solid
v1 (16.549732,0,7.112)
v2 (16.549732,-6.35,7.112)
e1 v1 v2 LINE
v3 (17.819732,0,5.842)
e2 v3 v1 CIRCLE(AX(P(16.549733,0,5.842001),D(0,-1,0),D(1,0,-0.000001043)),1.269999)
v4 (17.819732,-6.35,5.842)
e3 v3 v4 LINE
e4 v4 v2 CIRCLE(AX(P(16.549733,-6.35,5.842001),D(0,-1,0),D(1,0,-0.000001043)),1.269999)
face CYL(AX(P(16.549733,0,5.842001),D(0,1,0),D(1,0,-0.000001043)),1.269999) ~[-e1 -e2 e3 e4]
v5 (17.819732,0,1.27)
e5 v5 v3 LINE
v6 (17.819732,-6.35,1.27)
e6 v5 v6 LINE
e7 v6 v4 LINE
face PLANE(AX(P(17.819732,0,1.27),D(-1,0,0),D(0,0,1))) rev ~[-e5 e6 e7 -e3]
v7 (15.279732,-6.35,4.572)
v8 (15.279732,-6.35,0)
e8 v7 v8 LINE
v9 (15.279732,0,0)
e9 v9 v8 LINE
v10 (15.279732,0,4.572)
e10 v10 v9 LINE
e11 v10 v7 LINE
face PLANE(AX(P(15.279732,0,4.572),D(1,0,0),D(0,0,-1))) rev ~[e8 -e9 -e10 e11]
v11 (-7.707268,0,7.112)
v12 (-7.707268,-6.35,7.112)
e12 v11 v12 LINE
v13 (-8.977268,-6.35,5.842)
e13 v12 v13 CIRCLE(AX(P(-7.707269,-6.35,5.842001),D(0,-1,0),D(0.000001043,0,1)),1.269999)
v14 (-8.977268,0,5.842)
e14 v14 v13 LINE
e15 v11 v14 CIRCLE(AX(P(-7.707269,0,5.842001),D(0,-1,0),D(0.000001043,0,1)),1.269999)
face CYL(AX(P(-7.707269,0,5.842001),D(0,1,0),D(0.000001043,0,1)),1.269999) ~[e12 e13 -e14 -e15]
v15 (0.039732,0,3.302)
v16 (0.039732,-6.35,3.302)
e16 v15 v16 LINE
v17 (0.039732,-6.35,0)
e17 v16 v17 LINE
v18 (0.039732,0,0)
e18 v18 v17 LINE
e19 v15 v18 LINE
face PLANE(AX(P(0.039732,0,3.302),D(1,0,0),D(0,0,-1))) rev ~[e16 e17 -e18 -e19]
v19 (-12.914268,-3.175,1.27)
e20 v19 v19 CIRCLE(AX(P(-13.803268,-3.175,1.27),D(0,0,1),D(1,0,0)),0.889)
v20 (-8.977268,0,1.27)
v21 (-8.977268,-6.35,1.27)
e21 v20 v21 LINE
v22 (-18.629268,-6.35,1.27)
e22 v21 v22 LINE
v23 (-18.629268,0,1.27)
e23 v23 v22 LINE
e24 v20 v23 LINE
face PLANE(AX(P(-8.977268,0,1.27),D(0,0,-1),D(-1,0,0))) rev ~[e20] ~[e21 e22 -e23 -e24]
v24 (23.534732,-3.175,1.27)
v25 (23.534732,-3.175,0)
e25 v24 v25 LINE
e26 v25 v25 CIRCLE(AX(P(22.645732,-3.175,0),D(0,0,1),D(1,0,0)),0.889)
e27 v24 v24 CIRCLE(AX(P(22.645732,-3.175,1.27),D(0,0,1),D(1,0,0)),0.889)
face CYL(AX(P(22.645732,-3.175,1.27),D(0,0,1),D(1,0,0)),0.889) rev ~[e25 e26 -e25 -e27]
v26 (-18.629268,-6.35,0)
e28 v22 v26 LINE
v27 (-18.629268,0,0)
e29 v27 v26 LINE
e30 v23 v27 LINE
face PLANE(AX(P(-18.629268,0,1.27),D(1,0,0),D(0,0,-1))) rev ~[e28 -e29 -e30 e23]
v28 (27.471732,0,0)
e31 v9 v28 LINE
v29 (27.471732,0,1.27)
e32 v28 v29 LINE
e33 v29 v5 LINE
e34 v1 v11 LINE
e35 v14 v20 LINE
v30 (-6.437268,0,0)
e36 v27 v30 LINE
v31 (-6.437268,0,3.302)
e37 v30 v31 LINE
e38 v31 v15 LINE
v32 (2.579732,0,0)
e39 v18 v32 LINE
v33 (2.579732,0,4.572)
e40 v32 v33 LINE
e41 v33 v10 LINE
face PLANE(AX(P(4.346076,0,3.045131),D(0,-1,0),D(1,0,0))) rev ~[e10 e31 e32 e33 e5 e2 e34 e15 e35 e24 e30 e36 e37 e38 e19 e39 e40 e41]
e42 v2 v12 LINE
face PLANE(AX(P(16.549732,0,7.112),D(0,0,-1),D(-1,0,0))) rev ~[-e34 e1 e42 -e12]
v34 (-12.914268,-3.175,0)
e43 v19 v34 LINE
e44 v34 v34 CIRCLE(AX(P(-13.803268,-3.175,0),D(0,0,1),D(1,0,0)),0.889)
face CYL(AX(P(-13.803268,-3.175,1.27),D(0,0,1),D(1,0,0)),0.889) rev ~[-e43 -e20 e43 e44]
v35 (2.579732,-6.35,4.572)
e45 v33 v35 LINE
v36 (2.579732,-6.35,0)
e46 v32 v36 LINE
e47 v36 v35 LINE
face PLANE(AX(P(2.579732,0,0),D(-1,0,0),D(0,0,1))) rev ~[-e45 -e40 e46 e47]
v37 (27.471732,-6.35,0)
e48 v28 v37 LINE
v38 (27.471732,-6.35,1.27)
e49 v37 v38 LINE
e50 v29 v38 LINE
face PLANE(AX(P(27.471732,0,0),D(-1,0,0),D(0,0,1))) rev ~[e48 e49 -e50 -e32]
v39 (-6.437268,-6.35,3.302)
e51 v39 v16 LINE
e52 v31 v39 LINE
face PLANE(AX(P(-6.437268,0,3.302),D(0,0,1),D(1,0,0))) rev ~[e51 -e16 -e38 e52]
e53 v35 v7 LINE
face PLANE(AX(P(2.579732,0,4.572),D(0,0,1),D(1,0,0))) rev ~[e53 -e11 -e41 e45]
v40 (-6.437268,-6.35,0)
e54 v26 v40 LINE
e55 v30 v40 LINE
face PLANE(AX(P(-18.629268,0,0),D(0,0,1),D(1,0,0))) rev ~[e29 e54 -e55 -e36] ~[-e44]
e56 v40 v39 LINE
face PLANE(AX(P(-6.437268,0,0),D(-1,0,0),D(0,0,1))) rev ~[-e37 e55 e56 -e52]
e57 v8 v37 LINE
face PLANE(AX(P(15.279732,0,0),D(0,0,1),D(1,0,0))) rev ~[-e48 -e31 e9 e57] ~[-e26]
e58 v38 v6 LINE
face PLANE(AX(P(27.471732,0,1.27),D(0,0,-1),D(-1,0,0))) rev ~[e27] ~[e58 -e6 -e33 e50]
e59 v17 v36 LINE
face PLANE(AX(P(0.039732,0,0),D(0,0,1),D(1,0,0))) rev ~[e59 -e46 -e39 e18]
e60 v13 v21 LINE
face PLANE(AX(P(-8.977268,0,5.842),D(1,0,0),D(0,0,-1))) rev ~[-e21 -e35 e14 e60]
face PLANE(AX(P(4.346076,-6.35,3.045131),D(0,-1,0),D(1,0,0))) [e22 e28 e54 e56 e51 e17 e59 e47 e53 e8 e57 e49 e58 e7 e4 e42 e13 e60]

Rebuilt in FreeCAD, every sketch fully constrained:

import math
import FreeCAD as App
import Part
import Sketcher
from FreeCAD import Vector
Q = App.Units.Quantity

doc = App.newDocument("Part")
body = doc.addObject("PartDesign::Body", "Body")

# Sketch on XZ plane
sketch1 = doc.addObject("Sketcher::SketchObject", "Sketch")
body.addObject(sketch1)
sketch1.AttachmentSupport = (doc.XZ_Plane, [""])
sketch1.MapMode = "FlatFace"
sketch1.addGeometry(Part.LineSegment(Vector(15.3, 4.6, 0), Vector(15.3, 0, 0)), False)
sketch1.addGeometry(Part.LineSegment(Vector(15.3, 0, 0), Vector(27.5, 0, 0)), False)
sketch1.addGeometry(Part.LineSegment(Vector(27.5, 0, 0), Vector(27.5, 1.3, 0)), False)
sketch1.addGeometry(Part.LineSegment(Vector(27.5, 1.3, 0), Vector(17.8, 1.3, 0)), False)
sketch1.addGeometry(Part.LineSegment(Vector(17.8, 1.3, 0), Vector(17.8, 5.8, 0)), False)
sketch1.addGeometry(Part.ArcOfCircle(Part.Circle(Vector(16.5, 5.8, 0), Vector(0, 0, 1), 1.3), math.radians(0), math.radians(90)), False)
sketch1.addGeometry(Part.LineSegment(Vector(16.5, 7.1, 0), Vector(-7.7, 7.1, 0)), False)
sketch1.addGeometry(Part.ArcOfCircle(Part.Circle(Vector(-7.7, 5.8, 0), Vector(0, 0, 1), 1.3), math.radians(90), math.radians(180)), False)
sketch1.addGeometry(Part.LineSegment(Vector(-9, 5.8, 0), Vector(-9, 1.3, 0)), False)
sketch1.addGeometry(Part.LineSegment(Vector(-9, 1.3, 0), Vector(-18.6, 1.3, 0)), False)
sketch1.addGeometry(Part.LineSegment(Vector(-18.6, 1.3, 0), Vector(-18.6, 0, 0)), False)
sketch1.addGeometry(Part.LineSegment(Vector(-18.6, 0, 0), Vector(-6.4, 0, 0)), False)
sketch1.addGeometry(Part.LineSegment(Vector(-6.4, 0, 0), Vector(-6.4, 3.3, 0)), False)
sketch1.addGeometry(Part.LineSegment(Vector(-6.4, 3.3, 0), Vector(0, 3.3, 0)), False)
sketch1.addGeometry(Part.LineSegment(Vector(0, 3.3, 0), Vector(0, 0, 0)), False)
sketch1.addGeometry(Part.LineSegment(Vector(0, 0, 0), Vector(2.6, 0, 0)), False)
sketch1.addGeometry(Part.LineSegment(Vector(2.6, 0, 0), Vector(2.6, 4.6, 0)), False)
sketch1.addGeometry(Part.LineSegment(Vector(2.6, 4.6, 0), Vector(15.3, 4.6, 0)), False)
sketch1.addConstraint(Sketcher.Constraint("Coincident", 0, 2, 1, 1))
sketch1.addConstraint(Sketcher.Constraint("Coincident", 1, 2, 2, 1))
sketch1.addConstraint(Sketcher.Constraint("Coincident", 2, 2, 3, 1))
sketch1.addConstraint(Sketcher.Constraint("Coincident", 3, 2, 4, 1))
sketch1.addConstraint(Sketcher.Constraint("Tangent", 4, 2, 5, 1))
sketch1.addConstraint(Sketcher.Constraint("Tangent", 5, 2, 6, 1))
sketch1.addConstraint(Sketcher.Constraint("Tangent", 6, 2, 7, 1))
sketch1.addConstraint(Sketcher.Constraint("Tangent", 7, 2, 8, 1))
sketch1.addConstraint(Sketcher.Constraint("Coincident", 8, 2, 9, 1))
sketch1.addConstraint(Sketcher.Constraint("Coincident", 9, 2, 10, 1))
sketch1.addConstraint(Sketcher.Constraint("Coincident", 10, 2, 11, 1))
sketch1.addConstraint(Sketcher.Constraint("Coincident", 11, 2, 12, 1))
sketch1.addConstraint(Sketcher.Constraint("Coincident", 12, 2, 13, 1))
sketch1.addConstraint(Sketcher.Constraint("Coincident", 13, 2, 14, 1))
sketch1.addConstraint(Sketcher.Constraint("Coincident", 14, 2, 15, 1))
sketch1.addConstraint(Sketcher.Constraint("Coincident", 15, 2, 16, 1))
sketch1.addConstraint(Sketcher.Constraint("Coincident", 16, 2, 17, 1))
sketch1.addConstraint(Sketcher.Constraint("Coincident", 17, 2, 0, 1))
sketch1.addConstraint(Sketcher.Constraint("Vertical", 0))
sketch1.addConstraint(Sketcher.Constraint("Horizontal", 1))
sketch1.addConstraint(Sketcher.Constraint("Vertical", 2))
sketch1.addConstraint(Sketcher.Constraint("Horizontal", 3))
sketch1.addConstraint(Sketcher.Constraint("Vertical", 4))
sketch1.addConstraint(Sketcher.Constraint("Horizontal", 6))
sketch1.addConstraint(Sketcher.Constraint("Vertical", 8))
sketch1.addConstraint(Sketcher.Constraint("Horizontal", 9))
sketch1.addConstraint(Sketcher.Constraint("Vertical", 10))
sketch1.addConstraint(Sketcher.Constraint("Horizontal", 11))
sketch1.addConstraint(Sketcher.Constraint("Vertical", 12))
sketch1.addConstraint(Sketcher.Constraint("Horizontal", 13))
sketch1.addConstraint(Sketcher.Constraint("Vertical", 14))
sketch1.addConstraint(Sketcher.Constraint("Horizontal", 15))
sketch1.addConstraint(Sketcher.Constraint("Vertical", 16))
sketch1.addConstraint(Sketcher.Constraint("Horizontal", 17))
sketch1.addConstraint(Sketcher.Constraint("Equal", 5, 7))
sketch1.addConstraint(Sketcher.Constraint("PointOnObject", 0, 2, -1))
sketch1.addConstraint(Sketcher.Constraint("PointOnObject", 10, 2, -1))
sketch1.addConstraint(Sketcher.Constraint("PointOnObject", 14, 2, -1))
sketch1.addConstraint(Sketcher.Constraint("Horizontal", 3, 2, 8, 2))
sketch1.addConstraint(Sketcher.Constraint("Equal", 3, 9))
sketch1.addConstraint(Sketcher.Constraint("Equal", 1, 11))
sketch1.addConstraint(Sketcher.Constraint("Equal", 0, 4))
sketch1.addConstraint(Sketcher.Constraint("Radius", 5, Q("0.0499999 in")))
sketch1.addConstraint(Sketcher.Constraint("DistanceX", 15, 1, 15, 2, Q("0.1 in")))
sketch1.addConstraint(Sketcher.Constraint("DistanceX", 17, 1, 17, 2, Q("0.5 in")))
sketch1.addConstraint(Sketcher.Constraint("DistanceX", 1, 1, 1, 2, Q("0.48 in")))
sketch1.addConstraint(Sketcher.Constraint("DistanceX", 3, 2, 3, 1, Q("0.38 in")))
sketch1.addConstraint(Sketcher.Constraint("DistanceY", 0, 2, 0, 1, Q("0.18 in")))
sketch1.addConstraint(Sketcher.Constraint("DistanceY", 2, 1, 2, 2, Q("0.05 in")))
sketch1.addConstraint(Sketcher.Constraint("DistanceY", 12, 1, 12, 2, Q("0.13 in")))
sketch1.addConstraint(Sketcher.Constraint("DistanceX", 6, 2, 6, 1, Q("0.955 in")))
sketch1.addConstraint(Sketcher.Constraint("DistanceX", 7, 3, -1, 1, 7.707269))
pad1 = doc.addObject("PartDesign::Pad", "Pad")
body.addObject(pad1)
pad1.Profile = sketch1
pad1.Length = Q("0.25 in")

# Sketch on XY plane
sketch2 = doc.addObject("Sketcher::SketchObject", "Sketch001")
body.addObject(sketch2)
sketch2.AttachmentSupport = (doc.XY_Plane, [""])
sketch2.MapMode = "FlatFace"
sketch2.AttachmentOffset = App.Placement(Vector(0, 0, 0.05 * 25.4), App.Rotation())
sketch2.addGeometry(Part.Circle(Vector(-13.8, -3.2, 0), Vector(0, 0, 1), 0.9), False)
sketch2.addGeometry(Part.Circle(Vector(22.6, -3.2, 0), Vector(0, 0, 1), 0.9), False)
sketch2.addConstraint(Sketcher.Constraint("Equal", 0, 1))
sketch2.addConstraint(Sketcher.Constraint("Horizontal", 0, 3, 1, 3))
sketch2.addConstraint(Sketcher.Constraint("Diameter", 0, Q("0.07 in")))
sketch2.addConstraint(Sketcher.Constraint("DistanceY", 0, 3, -1, 1, Q("0.125 in")))
sketch2.addConstraint(Sketcher.Constraint("DistanceX", 0, 3, 1, 3, Q("1.435 in")))
sketch2.addConstraint(Sketcher.Constraint("DistanceX", -1, 1, 1, 3, 22.645732))
pocket1 = doc.addObject("PartDesign::Pocket", "Pocket")
body.addObject(pocket1)
pocket1.Profile = sketch2
pocket1.Type = "ThroughAll"

doc.recompute()
